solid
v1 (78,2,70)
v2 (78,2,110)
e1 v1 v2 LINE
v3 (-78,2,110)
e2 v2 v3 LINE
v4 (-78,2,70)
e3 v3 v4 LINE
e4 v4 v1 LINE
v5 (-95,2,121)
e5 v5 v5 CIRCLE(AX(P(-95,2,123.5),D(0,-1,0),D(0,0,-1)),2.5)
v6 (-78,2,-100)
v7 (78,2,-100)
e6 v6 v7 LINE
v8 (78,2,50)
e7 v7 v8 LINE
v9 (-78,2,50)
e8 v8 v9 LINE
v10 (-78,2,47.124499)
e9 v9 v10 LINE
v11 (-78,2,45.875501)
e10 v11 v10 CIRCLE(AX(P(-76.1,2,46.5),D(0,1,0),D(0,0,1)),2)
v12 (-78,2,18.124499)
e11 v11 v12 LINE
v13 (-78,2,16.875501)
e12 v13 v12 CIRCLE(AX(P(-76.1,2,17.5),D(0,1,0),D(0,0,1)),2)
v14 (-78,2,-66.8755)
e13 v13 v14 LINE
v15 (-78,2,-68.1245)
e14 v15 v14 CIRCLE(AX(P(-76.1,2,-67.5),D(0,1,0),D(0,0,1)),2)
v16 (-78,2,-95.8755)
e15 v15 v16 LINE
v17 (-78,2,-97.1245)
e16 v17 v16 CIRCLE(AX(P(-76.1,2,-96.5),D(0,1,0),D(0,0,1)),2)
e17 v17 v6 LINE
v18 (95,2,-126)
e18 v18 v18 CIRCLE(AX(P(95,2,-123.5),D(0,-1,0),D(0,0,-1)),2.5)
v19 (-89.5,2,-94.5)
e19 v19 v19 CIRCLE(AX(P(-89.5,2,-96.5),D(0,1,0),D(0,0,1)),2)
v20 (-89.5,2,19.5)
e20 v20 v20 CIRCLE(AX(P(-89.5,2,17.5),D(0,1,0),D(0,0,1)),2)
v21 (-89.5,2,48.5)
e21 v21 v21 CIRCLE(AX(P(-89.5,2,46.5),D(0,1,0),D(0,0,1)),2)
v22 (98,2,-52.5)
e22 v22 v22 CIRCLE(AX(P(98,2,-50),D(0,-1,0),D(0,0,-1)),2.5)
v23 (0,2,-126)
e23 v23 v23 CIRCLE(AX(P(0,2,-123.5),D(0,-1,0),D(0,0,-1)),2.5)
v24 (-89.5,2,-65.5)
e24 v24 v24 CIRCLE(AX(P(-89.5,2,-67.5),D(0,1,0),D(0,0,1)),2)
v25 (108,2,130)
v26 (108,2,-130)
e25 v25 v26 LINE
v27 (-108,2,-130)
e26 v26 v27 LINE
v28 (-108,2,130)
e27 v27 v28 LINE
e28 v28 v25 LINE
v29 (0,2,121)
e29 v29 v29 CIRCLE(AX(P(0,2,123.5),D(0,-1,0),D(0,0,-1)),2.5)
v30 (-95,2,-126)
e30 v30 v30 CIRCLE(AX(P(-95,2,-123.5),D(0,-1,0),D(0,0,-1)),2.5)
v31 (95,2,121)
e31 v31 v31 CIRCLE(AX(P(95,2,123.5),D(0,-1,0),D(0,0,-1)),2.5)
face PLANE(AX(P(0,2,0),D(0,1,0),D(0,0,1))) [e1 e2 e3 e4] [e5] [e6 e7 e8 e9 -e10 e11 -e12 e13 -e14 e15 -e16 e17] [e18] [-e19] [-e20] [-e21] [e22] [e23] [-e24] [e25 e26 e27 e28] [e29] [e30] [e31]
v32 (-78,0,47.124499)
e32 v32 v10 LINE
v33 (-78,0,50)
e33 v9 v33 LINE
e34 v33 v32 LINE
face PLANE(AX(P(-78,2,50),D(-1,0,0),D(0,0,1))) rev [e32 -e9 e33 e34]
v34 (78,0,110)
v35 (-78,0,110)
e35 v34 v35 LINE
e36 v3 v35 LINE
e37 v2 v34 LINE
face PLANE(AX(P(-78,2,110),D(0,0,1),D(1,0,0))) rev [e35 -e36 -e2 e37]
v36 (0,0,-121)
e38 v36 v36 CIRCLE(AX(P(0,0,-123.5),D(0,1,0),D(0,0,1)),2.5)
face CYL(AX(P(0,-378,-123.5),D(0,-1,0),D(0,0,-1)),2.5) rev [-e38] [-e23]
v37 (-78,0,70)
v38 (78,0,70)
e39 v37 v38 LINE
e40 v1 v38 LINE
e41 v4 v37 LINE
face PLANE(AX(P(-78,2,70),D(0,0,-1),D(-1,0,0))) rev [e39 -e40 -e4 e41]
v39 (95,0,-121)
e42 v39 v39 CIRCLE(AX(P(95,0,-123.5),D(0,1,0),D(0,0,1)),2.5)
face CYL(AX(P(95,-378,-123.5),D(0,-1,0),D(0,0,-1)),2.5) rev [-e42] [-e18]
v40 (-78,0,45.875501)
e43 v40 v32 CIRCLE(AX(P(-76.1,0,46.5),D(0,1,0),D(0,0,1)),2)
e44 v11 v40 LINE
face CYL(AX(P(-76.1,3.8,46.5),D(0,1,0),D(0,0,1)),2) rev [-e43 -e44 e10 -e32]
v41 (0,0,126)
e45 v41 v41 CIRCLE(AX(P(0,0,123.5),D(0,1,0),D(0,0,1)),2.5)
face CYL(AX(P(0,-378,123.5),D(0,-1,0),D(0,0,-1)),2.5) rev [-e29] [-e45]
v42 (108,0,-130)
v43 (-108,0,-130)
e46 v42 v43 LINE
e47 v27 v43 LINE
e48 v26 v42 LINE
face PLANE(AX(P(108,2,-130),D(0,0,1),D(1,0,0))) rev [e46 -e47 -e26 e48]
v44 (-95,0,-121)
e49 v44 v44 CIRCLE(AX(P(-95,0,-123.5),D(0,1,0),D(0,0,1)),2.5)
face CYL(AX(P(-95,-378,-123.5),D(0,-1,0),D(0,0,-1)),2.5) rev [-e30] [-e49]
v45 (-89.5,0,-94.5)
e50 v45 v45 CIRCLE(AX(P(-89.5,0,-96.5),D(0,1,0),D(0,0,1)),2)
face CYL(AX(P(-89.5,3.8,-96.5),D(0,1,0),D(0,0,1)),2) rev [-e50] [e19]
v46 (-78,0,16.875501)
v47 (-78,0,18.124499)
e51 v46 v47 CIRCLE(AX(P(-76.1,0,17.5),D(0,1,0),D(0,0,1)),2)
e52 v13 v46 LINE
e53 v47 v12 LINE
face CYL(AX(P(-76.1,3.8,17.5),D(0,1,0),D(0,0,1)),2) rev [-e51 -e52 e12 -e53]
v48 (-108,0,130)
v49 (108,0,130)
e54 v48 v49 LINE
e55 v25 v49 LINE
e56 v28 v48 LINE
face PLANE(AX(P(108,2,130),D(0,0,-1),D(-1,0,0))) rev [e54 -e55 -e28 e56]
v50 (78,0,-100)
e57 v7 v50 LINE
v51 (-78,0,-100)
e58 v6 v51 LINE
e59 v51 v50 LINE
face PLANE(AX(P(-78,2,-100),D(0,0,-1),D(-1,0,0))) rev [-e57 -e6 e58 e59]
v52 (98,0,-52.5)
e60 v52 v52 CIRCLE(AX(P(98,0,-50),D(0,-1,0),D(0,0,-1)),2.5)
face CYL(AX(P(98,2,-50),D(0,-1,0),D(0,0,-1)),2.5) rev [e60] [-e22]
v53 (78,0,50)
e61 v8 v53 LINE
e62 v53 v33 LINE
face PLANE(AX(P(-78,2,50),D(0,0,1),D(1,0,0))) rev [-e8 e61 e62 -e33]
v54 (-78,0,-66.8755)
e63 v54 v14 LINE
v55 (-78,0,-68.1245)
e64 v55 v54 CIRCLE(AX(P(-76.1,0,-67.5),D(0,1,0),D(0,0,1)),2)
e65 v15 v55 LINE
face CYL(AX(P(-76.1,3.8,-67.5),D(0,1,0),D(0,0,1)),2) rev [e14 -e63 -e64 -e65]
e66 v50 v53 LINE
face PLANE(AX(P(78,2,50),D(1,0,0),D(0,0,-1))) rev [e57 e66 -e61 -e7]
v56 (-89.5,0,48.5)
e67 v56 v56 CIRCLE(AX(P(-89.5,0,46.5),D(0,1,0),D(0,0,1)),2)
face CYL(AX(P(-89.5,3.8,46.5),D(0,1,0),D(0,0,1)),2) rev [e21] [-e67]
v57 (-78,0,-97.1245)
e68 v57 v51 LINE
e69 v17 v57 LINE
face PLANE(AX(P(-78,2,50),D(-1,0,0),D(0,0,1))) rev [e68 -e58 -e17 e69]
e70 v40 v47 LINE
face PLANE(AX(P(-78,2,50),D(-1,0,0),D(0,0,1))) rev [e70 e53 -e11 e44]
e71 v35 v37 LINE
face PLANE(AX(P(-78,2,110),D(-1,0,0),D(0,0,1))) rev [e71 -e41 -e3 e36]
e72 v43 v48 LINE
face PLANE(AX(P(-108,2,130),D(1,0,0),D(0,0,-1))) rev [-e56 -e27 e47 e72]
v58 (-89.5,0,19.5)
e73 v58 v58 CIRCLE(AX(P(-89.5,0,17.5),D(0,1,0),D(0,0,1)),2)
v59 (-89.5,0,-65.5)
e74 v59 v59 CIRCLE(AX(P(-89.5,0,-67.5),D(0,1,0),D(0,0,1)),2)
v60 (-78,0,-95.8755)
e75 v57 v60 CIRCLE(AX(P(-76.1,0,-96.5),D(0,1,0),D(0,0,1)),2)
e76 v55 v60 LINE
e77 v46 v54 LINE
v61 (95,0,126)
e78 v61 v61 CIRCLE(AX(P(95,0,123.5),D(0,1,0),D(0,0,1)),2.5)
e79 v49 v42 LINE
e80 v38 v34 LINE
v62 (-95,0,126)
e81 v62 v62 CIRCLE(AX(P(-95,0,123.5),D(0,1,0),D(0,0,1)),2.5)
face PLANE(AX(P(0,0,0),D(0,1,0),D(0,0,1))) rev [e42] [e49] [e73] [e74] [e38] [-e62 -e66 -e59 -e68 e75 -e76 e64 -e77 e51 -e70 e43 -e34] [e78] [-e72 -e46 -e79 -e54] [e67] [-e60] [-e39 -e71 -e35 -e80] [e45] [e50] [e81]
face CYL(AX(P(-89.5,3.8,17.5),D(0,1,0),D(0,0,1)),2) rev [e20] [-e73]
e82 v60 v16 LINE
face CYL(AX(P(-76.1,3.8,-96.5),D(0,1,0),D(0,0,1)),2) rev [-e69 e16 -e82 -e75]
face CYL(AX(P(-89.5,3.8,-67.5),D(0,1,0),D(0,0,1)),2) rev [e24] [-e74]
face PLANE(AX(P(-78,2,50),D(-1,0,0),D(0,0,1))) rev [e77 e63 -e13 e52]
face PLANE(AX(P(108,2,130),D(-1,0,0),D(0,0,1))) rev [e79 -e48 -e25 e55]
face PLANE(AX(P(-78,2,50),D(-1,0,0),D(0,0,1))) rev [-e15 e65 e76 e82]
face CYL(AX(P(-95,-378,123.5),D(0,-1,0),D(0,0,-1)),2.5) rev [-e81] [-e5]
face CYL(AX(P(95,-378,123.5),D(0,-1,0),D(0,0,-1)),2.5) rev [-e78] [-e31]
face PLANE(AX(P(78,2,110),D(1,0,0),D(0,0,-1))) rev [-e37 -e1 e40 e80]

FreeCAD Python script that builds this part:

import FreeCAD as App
import Part
import Sketcher

V = App.Vector
Q = App.Units.Quantity


def add_polygon(sketch, points):
    """Adds a closed chain of lines whose ends are joined by coincident constraints."""
    first, n = sketch.GeometryCount, len(points)
    for a, b in zip(points, points[1:] + points[:1]):
        sketch.addGeometry(Part.LineSegment(App.Vector(*a, 0), App.Vector(*b, 0)), False)
    for i in range(n):
        sketch.addConstraint(Sketcher.Constraint("Coincident", first + i, 2, first + (i + 1) % n, 1))

doc = App.newDocument("Part")
body = doc.addObject("PartDesign::Body", "Body")

sketch1 = doc.addObject("Sketcher::SketchObject", "Sketch")
body.addObject(sketch1)
sketch1.AttachmentSupport = (doc.XZ_Plane, [""])
sketch1.MapMode = "FlatFace"
add_polygon(sketch1, [(-108, -130), (-108, 130), (108, 130), (108, -130)])
sketch1.addConstraint([
    Sketcher.Constraint("Vertical", 0),
    Sketcher.Constraint("Horizontal", 1),
    Sketcher.Constraint("Vertical", 2),
    Sketcher.Constraint("Horizontal", 3),
    Sketcher.Constraint("Symmetric", 0, 2, 2, 2, -1, 1),
    Sketcher.Constraint("DistanceX", 1, 1, 1, 2, Q("216 mm")),
    Sketcher.Constraint("DistanceY", 0, 1, 0, 2, Q("260 mm")),
])
pad1 = doc.addObject("PartDesign::Pad", "Pad")
body.addObject(pad1)
pad1.Profile = sketch1
pad1.Length = 2
pad1.Reversed = True

sketch2 = doc.addObject("Sketcher::SketchObject", "Sketch001")
body.addObject(sketch2)
sketch2.AttachmentSupport = (doc.XZ_Plane, [""])
sketch2.MapMode = "FlatFace"
add_polygon(sketch2, [(-78, 50), (-78, -100), (78, -100), (78, 50)])
add_polygon(sketch2, [(-78, 110), (-78, 70), (78, 70), (78, 110)])
sketch2.addConstraint([
    Sketcher.Constraint("Vertical", 0),
    Sketcher.Constraint("Horizontal", 1),
    Sketcher.Constraint("Vertical", 2),
    Sketcher.Constraint("Horizontal", 3),
    Sketcher.Constraint("Vertical", 4),
    Sketcher.Constraint("Horizontal", 5),
    Sketcher.Constraint("Vertical", 6),
    Sketcher.Constraint("Horizontal", 7),
    Sketcher.Constraint("Vertical", 3, 2, 4, 2),
    Sketcher.Constraint("Vertical", 2, 2, 5, 2),
    Sketcher.Constraint("DistanceX", 1, 1, 1, 2, Q("156 mm")),
    Sketcher.Constraint("DistanceY", 0, 2, 0, 1, Q("150 mm")),
    Sketcher.Constraint("DistanceY", 4, 2, 4, 1, Q("40 mm")),
    Sketcher.Constraint("DistanceX", 0, 2, -1, 1, Q("78 mm")),
    Sketcher.Constraint("DistanceY", 0, 2, -1, 1, Q("100 mm")),
    Sketcher.Constraint("DistanceY", -1, 1, 4, 2, Q("70 mm")),
])
pocket1 = doc.addObject("PartDesign::Pocket", "Pocket")
body.addObject(pocket1)
pocket1.Profile = sketch2
pocket1.Length = 2

sketch3 = doc.addObject("Sketcher::SketchObject", "Sketch002")
body.addObject(sketch3)
sketch3.AttachmentSupport = (doc.XZ_Plane, [""])
sketch3.MapMode = "FlatFace"
sketch3.addGeometry(Part.Circle(V(98, -50, 0), V(0, 0, 1), 2.5), False)
sketch3.addConstraint([
    Sketcher.Constraint("Diameter", 0, Q("5 mm")),
    Sketcher.Constraint("DistanceX", -1, 1, 0, 3, Q("98 mm")),
    Sketcher.Constraint("DistanceY", 0, 3, -1, 1, Q("50 mm")),
])
pocket2 = doc.addObject("PartDesign::Pocket", "Pocket001")
body.addObject(pocket2)
pocket2.Profile = sketch3
pocket2.Length = 2

sketch4 = doc.addObject("Sketcher::SketchObject", "Sketch003")
body.addObject(sketch4)
sketch4.AttachmentSupport = (doc.XZ_Plane, [""])
sketch4.MapMode = "FlatFace"
sketch4.AttachmentOffset = App.Placement(V(0, 0, -3.8), App.Rotation())
sketch4.addGeometry([
    Part.Circle(V(-89.5, 46.5, 0), V(0, 0, 1), 2),
    Part.Circle(V(-76.1, 46.5, 0), V(0, 0, 1), 2),
    Part.Circle(V(-76.1, 17.5, 0), V(0, 0, 1), 2),
    Part.Circle(V(-89.5, 17.5, 0), V(0, 0, 1), 2),
    Part.Circle(V(-89.5, -96.5, 0), V(0, 0, 1), 2),
    Part.Circle(V(-89.5, -67.5, 0), V(0, 0, 1), 2),
    Part.Circle(V(-76.1, -67.5, 0), V(0, 0, 1), 2),
    Part.Circle(V(-76.1, -96.5, 0), V(0, 0, 1), 2),
], False)
sketch4.addConstraint([
    Sketcher.Constraint("Equal", 0, 1),
    Sketcher.Constraint("Equal", 1, 2),
    Sketcher.Constraint("Equal", 2, 3),
    Sketcher.Constraint("Equal", 3, 4),
    Sketcher.Constraint("Equal", 4, 5),
    Sketcher.Constraint("Equal", 5, 6),
    Sketcher.Constraint("Equal", 6, 7),
    Sketcher.Constraint("Horizontal", 0, 3, 1, 3),
    Sketcher.Constraint("Horizontal", 2, 3, 3, 3),
    Sketcher.Constraint("Horizontal", 5, 3, 6, 3),
    Sketcher.Constraint("Horizontal", 4, 3, 7, 3),
    Sketcher.Constraint("Vertical", 1, 3, 2, 3),
    Sketcher.Constraint("Vertical", 0, 3, 3, 3),
    Sketcher.Constraint("Vertical", 3, 3, 4, 3),
    Sketcher.Constraint("Vertical", 4, 3, 5, 3),
    Sketcher.Constraint("Vertical", 2, 3, 6, 3),
    Sketcher.Constraint("Vertical", 6, 3, 7, 3),
    Sketcher.Constraint("Diameter", 0, Q("4 mm")),
    Sketcher.Constraint("DistanceY", 2, 3, 1, 3, Q("29 mm")),
    Sketcher.Constraint("DistanceY", 4, 3, 3, 3, Q("114 mm")),
    Sketcher.Constraint("DistanceY", 4, 3, 5, 3, Q("29 mm")),
    Sketcher.Constraint("DistanceX", 0, 3, -1, 1, Q("89.5 mm")),
    Sketcher.Constraint("DistanceY", -1, 1, 0, 3, Q("46.5 mm")),
    Sketcher.Constraint("DistanceX", 1, 3, -1, 1, Q("76.1 mm")),
])
doc.recompute()
hole = doc.addObject("PartDesign::Hole", "Hole")
body.addObject(hole)
hole.Profile = sketch4
hole.ThreadType = "None"
hole.Diameter = 4
hole.DepthType = "Dimension"
hole.Depth = 10
hole.DrillPoint = "Angled"
hole.DrillPointAngle = 118
hole.Reversed = True

sketch5 = doc.addObject("Sketcher::SketchObject", "Sketch004")
body.addObject(sketch5)
sketch5.AttachmentSupport = (doc.XZ_Plane, [""])
sketch5.MapMode = "FlatFace"
sketch5.AttachmentOffset = App.Placement(V(0, 0, 378), App.Rotation())
sketch5.addGeometry([
    Part.Circle(V(95, -123.5, 0), V(0, 0, 1), 2.5),
    Part.Circle(V(0, -123.5, 0), V(0, 0, 1), 2.5),
    Part.Circle(V(-95, -123.5, 0), V(0, 0, 1), 2.5),
    Part.Circle(V(95, 123.5, 0), V(0, 0, 1), 2.5),
    Part.Circle(V(0, 123.5, 0), V(0, 0, 1), 2.5),
    Part.Circle(V(-95, 123.5, 0), V(0, 0, 1), 2.5),
], False)
sketch5.addConstraint([
    Sketcher.Constraint("Equal", 0, 1),
    Sketcher.Constraint("Equal", 1, 2),
    Sketcher.Constraint("Equal", 2, 3),
    Sketcher.Constraint("Equal", 3, 4),
    Sketcher.Constraint("Equal", 4, 5),
    Sketcher.Constraint("Symmetric", 2, 3, 3, 3, -1, 1),
    Sketcher.Constraint("Symmetric", 1, 3, 4, 3, -1, 1),
    Sketcher.Constraint("Symmetric", 0, 3, 5, 3, -1, 1),
    Sketcher.Constraint("Symmetric", 0, 3, 2, 3, -2),
    Sketcher.Constraint("PointOnObject", 1, 3, -2),
    Sketcher.Constraint("Horizontal", 0, 3, 1, 3),
    Sketcher.Constraint("Diameter", 0, Q("5 mm")),
    Sketcher.Constraint("DistanceX", -1, 1, 0, 3, Q("95 mm")),
    Sketcher.Constraint("DistanceY", 0, 3, 3, 3, Q("247 mm")),
])
doc.recompute()
hole2 = doc.addObject("PartDesign::Hole", "Hole001")
body.addObject(hole2)
hole2.Profile = sketch5
hole2.ThreadType = "None"
hole2.Diameter = 5
hole2.DepthType = "Dimension"
hole2.Depth = 380
hole2.DrillPoint = "Flat"

doc.recompute()
